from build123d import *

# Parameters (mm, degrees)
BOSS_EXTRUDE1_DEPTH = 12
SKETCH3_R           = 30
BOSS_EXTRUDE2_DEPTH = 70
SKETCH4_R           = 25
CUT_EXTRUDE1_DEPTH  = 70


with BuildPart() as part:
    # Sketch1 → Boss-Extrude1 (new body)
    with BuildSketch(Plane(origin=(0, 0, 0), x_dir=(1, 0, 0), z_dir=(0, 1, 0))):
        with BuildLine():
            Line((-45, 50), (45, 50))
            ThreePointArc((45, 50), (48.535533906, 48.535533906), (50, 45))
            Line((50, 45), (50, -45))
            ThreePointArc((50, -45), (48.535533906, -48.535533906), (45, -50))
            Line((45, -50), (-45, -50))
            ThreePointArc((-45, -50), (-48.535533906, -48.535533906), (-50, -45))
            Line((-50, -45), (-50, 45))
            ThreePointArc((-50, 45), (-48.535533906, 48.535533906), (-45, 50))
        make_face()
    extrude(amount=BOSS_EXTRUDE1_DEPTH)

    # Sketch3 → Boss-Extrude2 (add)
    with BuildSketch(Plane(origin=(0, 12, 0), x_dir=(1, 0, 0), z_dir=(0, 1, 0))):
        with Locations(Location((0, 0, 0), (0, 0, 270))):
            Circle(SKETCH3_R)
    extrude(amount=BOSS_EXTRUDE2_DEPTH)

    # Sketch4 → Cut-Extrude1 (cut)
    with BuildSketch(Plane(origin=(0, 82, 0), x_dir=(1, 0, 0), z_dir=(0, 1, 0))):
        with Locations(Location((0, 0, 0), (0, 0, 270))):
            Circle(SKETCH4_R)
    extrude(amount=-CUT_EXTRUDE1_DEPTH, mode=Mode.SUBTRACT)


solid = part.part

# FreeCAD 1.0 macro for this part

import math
import FreeCAD as App
import Part
import Sketcher
from FreeCAD import Vector

doc = App.newDocument("Part")
params = doc.addObject("Spreadsheet::Sheet", "Params")
for row, (alias, value) in enumerate([
    ("sketch1_radius", "5 mm"),
    ("sketch1_width", "90 mm"),
    ("pad1_length", "12 mm"),
    ("sketch2_diameter", "60 mm"),
    ("pad2_length", "70 mm"),
    ("sketch3_diameter", "50 mm"),
    ("pocket1_length", "70 mm"),
], start=1):
    params.set(f"A{row}", alias)
    params.set(f"B{row}", "=" + value)
    params.setAlias(f"B{row}", alias)

body = doc.addObject("PartDesign::Body", "Body")

sketch1 = body.newObject("Sketcher::SketchObject", "Sketch")
sketch1.AttachmentSupport = (doc.getObject("XZ_Plane"), [""])
sketch1.MapMode = "FlatFace"
sketch1.addGeometry(Part.LineSegment(Vector(45, -50, 0), Vector(-45, -50, 0)), False)
sketch1.addGeometry(Part.ArcOfCircle(Part.Circle(Vector(-45, -45, 0), Vector(0, 0, 1), 5), math.radians(180), math.radians(270)), False)
sketch1.addGeometry(Part.LineSegment(Vector(-50, -45, 0), Vector(-50, 45, 0)), False)
sketch1.addGeometry(Part.ArcOfCircle(Part.Circle(Vector(-45, 45, 0), Vector(0, 0, 1), 5), math.radians(90), math.radians(180)), False)
sketch1.addGeometry(Part.LineSegment(Vector(-45, 50, 0), Vector(45, 50, 0)), False)
sketch1.addGeometry(Part.ArcOfCircle(Part.Circle(Vector(45, 45, 0), Vector(0, 0, 1), 5), math.radians(0), math.radians(90)), False)
sketch1.addGeometry(Part.LineSegment(Vector(50, 45, 0), Vector(50, -45, 0)), False)
sketch1.addGeometry(Part.ArcOfCircle(Part.Circle(Vector(45, -45, 0), Vector(0, 0, 1), 5), math.radians(-90), math.radians(0)), False)
sketch1.addConstraint(Sketcher.Constraint("Tangent", 0, 2, 1, 2))
sketch1.addConstraint(Sketcher.Constraint("Tangent", 1, 1, 2, 1))
sketch1.addConstraint(Sketcher.Constraint("Tangent", 2, 2, 3, 2))
sketch1.addConstraint(Sketcher.Constraint("Tangent", 3, 1, 4, 1))
sketch1.addConstraint(Sketcher.Constraint("Tangent", 4, 2, 5, 2))
sketch1.addConstraint(Sketcher.Constraint("Tangent", 5, 1, 6, 1))
sketch1.addConstraint(Sketcher.Constraint("Tangent", 6, 2, 7, 2))
sketch1.addConstraint(Sketcher.Constraint("Tangent", 7, 1, 0, 1))
sketch1.addConstraint(Sketcher.Constraint("Horizontal", 0))
sketch1.addConstraint(Sketcher.Constraint("Vertical", 2))
sketch1.addConstraint(Sketcher.Constraint("Horizontal", 4))
sketch1.addConstraint(Sketcher.Constraint("Vertical", 6))
sketch1.addConstraint(Sketcher.Constraint("Equal", 1, 3))
sketch1.addConstraint(Sketcher.Constraint("Equal", 3, 5))
sketch1.addConstraint(Sketcher.Constraint("Equal", 5, 7))
sketch1.addConstraint(Sketcher.Constraint("Symmetric", 1, 3, 5, 3, -1, 1))
sketch1.addConstraint(Sketcher.Constraint("Equal", 4, 2))
sketch1.addConstraint(Sketcher.Constraint("Radius", 1, 5.0))
sketch1.addConstraint(Sketcher.Constraint("DistanceX", 0, 2, 0, 1, 90.0))
sketch1.setExpression("Constraints[17]", "Params.sketch1_radius")
sketch1.setExpression("Constraints[18]", "Params.sketch1_width")
pad1 = body.newObject("PartDesign::Pad", "Pad")
pad1.Profile = sketch1
pad1.setExpression("Length", "Params.pad1_length")
pad1.Reversed = True

sketch2 = body.newObject("Sketcher::SketchObject", "Sketch001")
sketch2.AttachmentSupport = (doc.getObject("XZ_Plane"), [""])
sketch2.MapMode = "FlatFace"
sketch2.AttachmentOffset = App.Placement(Vector(0, 0, -12), App.Rotation())
sketch2.addGeometry(Part.Circle(Vector(0, 0, 0), Vector(0, 0, 1), 30), False)
sketch2.addConstraint(Sketcher.Constraint("Coincident", 0, 3, -1, 1))
sketch2.addConstraint(Sketcher.Constraint("Diameter", 0, 60.0))
sketch2.setExpression("Constraints[1]", "Params.sketch2_diameter")
pad2 = body.newObject("PartDesign::Pad", "Pad001")
pad2.Profile = sketch2
pad2.setExpression("Length", "Params.pad2_length")
pad2.Reversed = True

sketch3 = body.newObject("Sketcher::SketchObject", "Sketch002")
sketch3.AttachmentSupport = (doc.getObject("XZ_Plane"), [""])
sketch3.MapMode = "FlatFace"
sketch3.AttachmentOffset = App.Placement(Vector(0, 0, -82), App.Rotation())
sketch3.addGeometry(Part.Circle(Vector(0, 0, 0), Vector(0, 0, 1), 25), False)
sketch3.addConstraint(Sketcher.Constraint("Coincident", 0, 3, -1, 1))
sketch3.addConstraint(Sketcher.Constraint("Diameter", 0, 50.0))
sketch3.setExpression("Constraints[1]", "Params.sketch3_diameter")
pocket1 = body.newObject("PartDesign::Pocket", "Pocket")
pocket1.Profile = sketch3
pocket1.setExpression("Length", "Params.pocket1_length")
pocket1.Reversed = True

doc.recompute()
